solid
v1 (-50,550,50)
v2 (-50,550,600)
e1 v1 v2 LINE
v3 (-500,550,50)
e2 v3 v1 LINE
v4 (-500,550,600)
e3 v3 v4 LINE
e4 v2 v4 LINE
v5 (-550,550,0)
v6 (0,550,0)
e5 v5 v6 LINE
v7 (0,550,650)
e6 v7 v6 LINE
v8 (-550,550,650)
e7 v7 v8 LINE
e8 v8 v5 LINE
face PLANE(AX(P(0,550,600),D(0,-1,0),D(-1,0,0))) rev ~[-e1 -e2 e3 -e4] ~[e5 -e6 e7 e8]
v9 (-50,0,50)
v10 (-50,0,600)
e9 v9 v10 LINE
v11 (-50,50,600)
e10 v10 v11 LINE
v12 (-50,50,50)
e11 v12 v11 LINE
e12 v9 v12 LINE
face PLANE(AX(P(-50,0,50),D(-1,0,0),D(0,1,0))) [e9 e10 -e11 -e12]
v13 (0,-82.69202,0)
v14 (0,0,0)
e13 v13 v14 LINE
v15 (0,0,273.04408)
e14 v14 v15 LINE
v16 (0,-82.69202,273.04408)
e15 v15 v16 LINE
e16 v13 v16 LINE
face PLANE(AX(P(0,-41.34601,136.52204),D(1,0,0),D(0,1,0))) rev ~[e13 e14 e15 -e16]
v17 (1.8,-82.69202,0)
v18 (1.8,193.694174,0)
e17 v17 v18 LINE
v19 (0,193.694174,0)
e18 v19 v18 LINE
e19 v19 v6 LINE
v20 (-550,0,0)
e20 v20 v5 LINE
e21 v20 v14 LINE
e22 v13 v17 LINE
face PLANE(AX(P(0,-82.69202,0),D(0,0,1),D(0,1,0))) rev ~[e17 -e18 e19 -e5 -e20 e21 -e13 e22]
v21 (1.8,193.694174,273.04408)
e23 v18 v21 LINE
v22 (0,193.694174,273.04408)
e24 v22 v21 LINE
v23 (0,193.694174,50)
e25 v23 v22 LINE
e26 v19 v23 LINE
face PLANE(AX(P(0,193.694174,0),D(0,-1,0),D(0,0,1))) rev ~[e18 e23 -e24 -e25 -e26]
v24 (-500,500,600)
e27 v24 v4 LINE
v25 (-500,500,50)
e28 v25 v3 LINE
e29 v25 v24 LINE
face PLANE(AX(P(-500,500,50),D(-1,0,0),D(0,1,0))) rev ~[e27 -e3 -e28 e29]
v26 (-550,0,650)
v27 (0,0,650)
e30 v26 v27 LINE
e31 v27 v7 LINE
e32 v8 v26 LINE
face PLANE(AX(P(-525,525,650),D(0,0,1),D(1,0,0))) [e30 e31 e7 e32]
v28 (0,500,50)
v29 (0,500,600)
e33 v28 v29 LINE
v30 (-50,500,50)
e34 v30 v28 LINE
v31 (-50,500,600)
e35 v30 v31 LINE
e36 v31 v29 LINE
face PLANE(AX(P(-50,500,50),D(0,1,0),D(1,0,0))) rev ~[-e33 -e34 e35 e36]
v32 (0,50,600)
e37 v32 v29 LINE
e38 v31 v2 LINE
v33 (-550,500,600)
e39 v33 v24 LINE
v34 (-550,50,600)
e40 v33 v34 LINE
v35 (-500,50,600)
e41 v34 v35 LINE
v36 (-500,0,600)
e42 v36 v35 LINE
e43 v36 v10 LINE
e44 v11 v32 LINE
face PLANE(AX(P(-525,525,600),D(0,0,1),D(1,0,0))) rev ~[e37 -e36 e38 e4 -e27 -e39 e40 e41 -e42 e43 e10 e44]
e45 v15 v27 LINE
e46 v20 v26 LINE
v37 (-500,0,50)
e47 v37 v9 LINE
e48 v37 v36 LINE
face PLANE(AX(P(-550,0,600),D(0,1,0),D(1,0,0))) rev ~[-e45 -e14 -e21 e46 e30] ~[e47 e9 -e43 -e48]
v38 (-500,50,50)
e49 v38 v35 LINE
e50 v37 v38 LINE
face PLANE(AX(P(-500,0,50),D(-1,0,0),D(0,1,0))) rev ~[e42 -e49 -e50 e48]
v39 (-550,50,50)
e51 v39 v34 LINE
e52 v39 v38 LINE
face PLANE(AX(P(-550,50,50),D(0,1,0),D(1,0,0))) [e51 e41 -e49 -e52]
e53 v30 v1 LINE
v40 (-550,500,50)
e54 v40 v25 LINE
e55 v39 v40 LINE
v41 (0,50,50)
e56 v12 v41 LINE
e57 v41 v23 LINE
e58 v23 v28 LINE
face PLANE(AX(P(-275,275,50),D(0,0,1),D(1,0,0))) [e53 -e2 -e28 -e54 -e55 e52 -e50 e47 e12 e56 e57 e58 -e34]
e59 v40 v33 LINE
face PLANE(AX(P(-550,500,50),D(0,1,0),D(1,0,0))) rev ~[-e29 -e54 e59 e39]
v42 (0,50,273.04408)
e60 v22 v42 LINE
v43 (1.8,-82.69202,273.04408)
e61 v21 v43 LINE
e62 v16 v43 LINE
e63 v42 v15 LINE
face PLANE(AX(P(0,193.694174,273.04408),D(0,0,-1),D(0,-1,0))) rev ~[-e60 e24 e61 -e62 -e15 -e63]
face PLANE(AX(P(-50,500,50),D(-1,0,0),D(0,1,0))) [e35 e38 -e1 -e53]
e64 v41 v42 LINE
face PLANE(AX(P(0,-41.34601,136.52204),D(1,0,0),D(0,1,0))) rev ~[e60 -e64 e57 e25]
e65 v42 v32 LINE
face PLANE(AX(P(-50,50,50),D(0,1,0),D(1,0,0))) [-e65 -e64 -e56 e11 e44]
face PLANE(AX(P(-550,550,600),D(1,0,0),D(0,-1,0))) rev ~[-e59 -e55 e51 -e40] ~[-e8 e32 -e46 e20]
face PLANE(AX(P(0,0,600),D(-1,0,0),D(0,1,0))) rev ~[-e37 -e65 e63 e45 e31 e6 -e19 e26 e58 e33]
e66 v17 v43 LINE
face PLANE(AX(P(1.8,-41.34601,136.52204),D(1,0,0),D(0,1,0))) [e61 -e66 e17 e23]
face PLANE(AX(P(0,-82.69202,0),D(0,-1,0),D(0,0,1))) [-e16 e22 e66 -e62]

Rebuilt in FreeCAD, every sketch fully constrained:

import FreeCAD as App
import Part
import Sketcher
from FreeCAD import Vector
Q = App.Units.Quantity

doc = App.newDocument("Part")
body = doc.addObject("PartDesign::Body", "Body")

# Sketch on XY plane
sketch1 = body.newObject("Sketcher::SketchObject", "Sketch")
sketch1.AttachmentSupport = (doc.getObject("XY_Plane"), [""])
sketch1.MapMode = "FlatFace"
sketch1.addGeometry([
    Part.LineSegment(Vector(-550, 550, 0), Vector(-550, 0, 0)),
    Part.LineSegment(Vector(-550, 0, 0), Vector(0, 0, 0)),
    Part.LineSegment(Vector(0, 0, 0), Vector(0, 550, 0)),
    Part.LineSegment(Vector(0, 550, 0), Vector(-550, 550, 0)),
], False)
sketch1.addConstraint([
    Sketcher.Constraint("Coincident", 0, 2, 1, 1),
    Sketcher.Constraint("Coincident", 1, 2, 2, 1),
    Sketcher.Constraint("Coincident", 2, 2, 3, 1),
    Sketcher.Constraint("Coincident", 3, 2, 0, 1),
    Sketcher.Constraint("Vertical", 0),
    Sketcher.Constraint("Horizontal", 1),
    Sketcher.Constraint("Vertical", 2),
    Sketcher.Constraint("Horizontal", 3),
    Sketcher.Constraint("Coincident", 1, 2, -1, 1),
    Sketcher.Constraint("Equal", 3, 0),
    Sketcher.Constraint("DistanceX", 1, 1, 1, 2, Q("550 mm")),
])
pad1 = body.newObject("PartDesign::Pad", "Pad")
pad1.Profile = sketch1
pad1.Length = 50

# Sketch on XY plane
sketch2 = body.newObject("Sketcher::SketchObject", "Sketch001")
sketch2.AttachmentSupport = (doc.getObject("XY_Plane"), [""])
sketch2.MapMode = "FlatFace"
sketch2.AttachmentOffset = App.Placement(Vector(0, 0, 50), App.Rotation())
sketch2.addGeometry([
    Part.LineSegment(Vector(-550, 550, 0), Vector(-550, 500, 0)),  # 0
    Part.LineSegment(Vector(-550, 500, 0), Vector(-500, 500, 0)),  # 1
    Part.LineSegment(Vector(-500, 500, 0), Vector(-500, 550, 0)),  # 2
    Part.LineSegment(Vector(-500, 550, 0), Vector(-550, 550, 0)),  # 3
    Part.LineSegment(Vector(-550, 50, 0), Vector(-550, 0, 0)),  # 4
    Part.LineSegment(Vector(-550, 0, 0), Vector(-500, 0, 0)),  # 5
    Part.LineSegment(Vector(-500, 0, 0), Vector(-500, 50, 0)),  # 6
    Part.LineSegment(Vector(-500, 50, 0), Vector(-550, 50, 0)),  # 7
    Part.LineSegment(Vector(-50, 50, 0), Vector(-50, 0, 0)),  # 8
    Part.LineSegment(Vector(-50, 0, 0), Vector(0, 0, 0)),  # 9
    Part.LineSegment(Vector(0, 0, 0), Vector(0, 50, 0)),  # 10
    Part.LineSegment(Vector(0, 50, 0), Vector(-50, 50, 0)),  # 11
    Part.LineSegment(Vector(-50, 550, 0), Vector(-50, 500, 0)),  # 12
    Part.LineSegment(Vector(-50, 500, 0), Vector(0, 500, 0)),  # 13
    Part.LineSegment(Vector(0, 500, 0), Vector(0, 550, 0)),  # 14
    Part.LineSegment(Vector(0, 550, 0), Vector(-50, 550, 0)),  # 15
], False)
sketch2.addConstraint([
    Sketcher.Constraint("Coincident", 0, 2, 1, 1),
    Sketcher.Constraint("Coincident", 1, 2, 2, 1),
    Sketcher.Constraint("Coincident", 2, 2, 3, 1),
    Sketcher.Constraint("Coincident", 3, 2, 0, 1),
    Sketcher.Constraint("Coincident", 4, 2, 5, 1),
    Sketcher.Constraint("Coincident", 5, 2, 6, 1),
    Sketcher.Constraint("Coincident", 6, 2, 7, 1),
    Sketcher.Constraint("Coincident", 7, 2, 4, 1),
    Sketcher.Constraint("Coincident", 8, 2, 9, 1),
    Sketcher.Constraint("Coincident", 9, 2, 10, 1),
    Sketcher.Constraint("Coincident", 10, 2, 11, 1),
    Sketcher.Constraint("Coincident", 11, 2, 8, 1),
    Sketcher.Constraint("Coincident", 12, 2, 13, 1),
    Sketcher.Constraint("Coincident", 13, 2, 14, 1),
    Sketcher.Constraint("Coincident", 14, 2, 15, 1),
    Sketcher.Constraint("Coincident", 15, 2, 12, 1),
    Sketcher.Constraint("Vertical", 0),
    Sketcher.Constraint("Horizontal", 1),
    Sketcher.Constraint("Vertical", 2),
    Sketcher.Constraint("Horizontal", 3),
    Sketcher.Constraint("Vertical", 4),
    Sketcher.Constraint("Horizontal", 5),
    Sketcher.Constraint("Vertical", 6),
    Sketcher.Constraint("Horizontal", 7),
    Sketcher.Constraint("Vertical", 8),
    Sketcher.Constraint("Horizontal", 9),
    Sketcher.Constraint("Vertical", 10),
    Sketcher.Constraint("Horizontal", 11),
    Sketcher.Constraint("Vertical", 12),
    Sketcher.Constraint("Horizontal", 13),
    Sketcher.Constraint("Vertical", 14),
    Sketcher.Constraint("Horizontal", 15),
    Sketcher.Constraint("Coincident", 9, 2, -1, 1),
    Sketcher.Constraint("PointOnObject", 4, 2, -1),
    Sketcher.Constraint("PointOnObject", 13, 2, -2),
    Sketcher.Constraint("Horizontal", 7, 2, 10, 2),
    Sketcher.Constraint("Horizontal", 1, 2, 12, 2),
    Sketcher.Constraint("Horizontal", 3, 2, 14, 2),
    Sketcher.Constraint("Vertical", 3, 2, 4, 2),
    Sketcher.Constraint("Vertical", 2, 2, 5, 2),
    Sketcher.Constraint("Vertical", 11, 2, 12, 2),
    Sketcher.Constraint("Equal", 7, 9),
    Sketcher.Constraint("Equal", 15, 0),
    Sketcher.Constraint("Equal", 2, 4),
    Sketcher.Constraint("DistanceX", 1, 1, 1, 2, Q("50 mm")),
    Sketcher.Constraint("DistanceX", 0, 2, -1, 1, Q("550 mm")),
    Sketcher.Constraint("DistanceY", -1, 1, 0, 2, Q("500 mm")),
])
pad2 = body.newObject("PartDesign::Pad", "Pad001")
pad2.Profile = sketch2
pad2.Length = 550

# Sketch on XY plane
sketch3 = body.newObject("Sketcher::SketchObject", "Sketch002")
sketch3.AttachmentSupport = (doc.getObject("XY_Plane"), [""])
sketch3.MapMode = "FlatFace"
sketch3.AttachmentOffset = App.Placement(Vector(0, 0, 600), App.Rotation())
sketch3.addGeometry([
    Part.LineSegment(Vector(-550, 550, 0), Vector(-550, 0, 0)),
    Part.LineSegment(Vector(-550, 0, 0), Vector(0, 0, 0)),
    Part.LineSegment(Vector(0, 0, 0), Vector(0, 550, 0)),
    Part.LineSegment(Vector(0, 550, 0), Vector(-550, 550, 0)),
], False)
sketch3.addConstraint([
    Sketcher.Constraint("Coincident", 0, 2, 1, 1),
    Sketcher.Constraint("Coincident", 1, 2, 2, 1),
    Sketcher.Constraint("Coincident", 2, 2, 3, 1),
    Sketcher.Constraint("Coincident", 3, 2, 0, 1),
    Sketcher.Constraint("Vertical", 0),
    Sketcher.Constraint("Horizontal", 1),
    Sketcher.Constraint("Vertical", 2),
    Sketcher.Constraint("Horizontal", 3),
    Sketcher.Constraint("Coincident", 1, 2, -1, 1),
    Sketcher.Constraint("Equal", 3, 0),
    Sketcher.Constraint("DistanceX", 1, 1, 1, 2, Q("550 mm")),
])
pad3 = body.newObject("PartDesign::Pad", "Pad002")
pad3.Profile = sketch3
pad3.Length = 50

# Sketch on YZ plane
sketch4 = body.newObject("Sketcher::SketchObject", "Sketch003")
sketch4.AttachmentSupport = (doc.getObject("YZ_Plane"), [""])
sketch4.MapMode = "FlatFace"
sketch4.addGeometry([
    Part.LineSegment(Vector(-83, 273, 0), Vector(-83, 0, 0)),
    Part.LineSegment(Vector(-83, 0, 0), Vector(194, 0, 0)),
    Part.LineSegment(Vector(194, 0, 0), Vector(194, 273, 0)),
    Part.LineSegment(Vector(194, 273, 0), Vector(-83, 273, 0)),
], False)
sketch4.addConstraint([
    Sketcher.Constraint("Coincident", 0, 2, 1, 1),
    Sketcher.Constraint("Coincident", 1, 2, 2, 1),
    Sketcher.Constraint("Coincident", 2, 2, 3, 1),
    Sketcher.Constraint("Coincident", 3, 2, 0, 1),
    Sketcher.Constraint("Vertical", 0),
    Sketcher.Constraint("Horizontal", 1),
    Sketcher.Constraint("Vertical", 2),
    Sketcher.Constraint("Horizontal", 3),
    Sketcher.Constraint("PointOnObject", 0, 2, -1),
    Sketcher.Constraint("DistanceY", 0, 2, 0, 1, Q("273.04408 mm")),
    Sketcher.Constraint("DistanceX", 1, 1, 1, 2, Q("276.386194 mm")),
    Sketcher.Constraint("DistanceX", 0, 2, -1, 1, Q("82.69202 mm")),
])
pad4 = body.newObject("PartDesign::Pad", "Pad003")
pad4.Profile = sketch4
pad4.Length = 1.8

doc.recompute()
